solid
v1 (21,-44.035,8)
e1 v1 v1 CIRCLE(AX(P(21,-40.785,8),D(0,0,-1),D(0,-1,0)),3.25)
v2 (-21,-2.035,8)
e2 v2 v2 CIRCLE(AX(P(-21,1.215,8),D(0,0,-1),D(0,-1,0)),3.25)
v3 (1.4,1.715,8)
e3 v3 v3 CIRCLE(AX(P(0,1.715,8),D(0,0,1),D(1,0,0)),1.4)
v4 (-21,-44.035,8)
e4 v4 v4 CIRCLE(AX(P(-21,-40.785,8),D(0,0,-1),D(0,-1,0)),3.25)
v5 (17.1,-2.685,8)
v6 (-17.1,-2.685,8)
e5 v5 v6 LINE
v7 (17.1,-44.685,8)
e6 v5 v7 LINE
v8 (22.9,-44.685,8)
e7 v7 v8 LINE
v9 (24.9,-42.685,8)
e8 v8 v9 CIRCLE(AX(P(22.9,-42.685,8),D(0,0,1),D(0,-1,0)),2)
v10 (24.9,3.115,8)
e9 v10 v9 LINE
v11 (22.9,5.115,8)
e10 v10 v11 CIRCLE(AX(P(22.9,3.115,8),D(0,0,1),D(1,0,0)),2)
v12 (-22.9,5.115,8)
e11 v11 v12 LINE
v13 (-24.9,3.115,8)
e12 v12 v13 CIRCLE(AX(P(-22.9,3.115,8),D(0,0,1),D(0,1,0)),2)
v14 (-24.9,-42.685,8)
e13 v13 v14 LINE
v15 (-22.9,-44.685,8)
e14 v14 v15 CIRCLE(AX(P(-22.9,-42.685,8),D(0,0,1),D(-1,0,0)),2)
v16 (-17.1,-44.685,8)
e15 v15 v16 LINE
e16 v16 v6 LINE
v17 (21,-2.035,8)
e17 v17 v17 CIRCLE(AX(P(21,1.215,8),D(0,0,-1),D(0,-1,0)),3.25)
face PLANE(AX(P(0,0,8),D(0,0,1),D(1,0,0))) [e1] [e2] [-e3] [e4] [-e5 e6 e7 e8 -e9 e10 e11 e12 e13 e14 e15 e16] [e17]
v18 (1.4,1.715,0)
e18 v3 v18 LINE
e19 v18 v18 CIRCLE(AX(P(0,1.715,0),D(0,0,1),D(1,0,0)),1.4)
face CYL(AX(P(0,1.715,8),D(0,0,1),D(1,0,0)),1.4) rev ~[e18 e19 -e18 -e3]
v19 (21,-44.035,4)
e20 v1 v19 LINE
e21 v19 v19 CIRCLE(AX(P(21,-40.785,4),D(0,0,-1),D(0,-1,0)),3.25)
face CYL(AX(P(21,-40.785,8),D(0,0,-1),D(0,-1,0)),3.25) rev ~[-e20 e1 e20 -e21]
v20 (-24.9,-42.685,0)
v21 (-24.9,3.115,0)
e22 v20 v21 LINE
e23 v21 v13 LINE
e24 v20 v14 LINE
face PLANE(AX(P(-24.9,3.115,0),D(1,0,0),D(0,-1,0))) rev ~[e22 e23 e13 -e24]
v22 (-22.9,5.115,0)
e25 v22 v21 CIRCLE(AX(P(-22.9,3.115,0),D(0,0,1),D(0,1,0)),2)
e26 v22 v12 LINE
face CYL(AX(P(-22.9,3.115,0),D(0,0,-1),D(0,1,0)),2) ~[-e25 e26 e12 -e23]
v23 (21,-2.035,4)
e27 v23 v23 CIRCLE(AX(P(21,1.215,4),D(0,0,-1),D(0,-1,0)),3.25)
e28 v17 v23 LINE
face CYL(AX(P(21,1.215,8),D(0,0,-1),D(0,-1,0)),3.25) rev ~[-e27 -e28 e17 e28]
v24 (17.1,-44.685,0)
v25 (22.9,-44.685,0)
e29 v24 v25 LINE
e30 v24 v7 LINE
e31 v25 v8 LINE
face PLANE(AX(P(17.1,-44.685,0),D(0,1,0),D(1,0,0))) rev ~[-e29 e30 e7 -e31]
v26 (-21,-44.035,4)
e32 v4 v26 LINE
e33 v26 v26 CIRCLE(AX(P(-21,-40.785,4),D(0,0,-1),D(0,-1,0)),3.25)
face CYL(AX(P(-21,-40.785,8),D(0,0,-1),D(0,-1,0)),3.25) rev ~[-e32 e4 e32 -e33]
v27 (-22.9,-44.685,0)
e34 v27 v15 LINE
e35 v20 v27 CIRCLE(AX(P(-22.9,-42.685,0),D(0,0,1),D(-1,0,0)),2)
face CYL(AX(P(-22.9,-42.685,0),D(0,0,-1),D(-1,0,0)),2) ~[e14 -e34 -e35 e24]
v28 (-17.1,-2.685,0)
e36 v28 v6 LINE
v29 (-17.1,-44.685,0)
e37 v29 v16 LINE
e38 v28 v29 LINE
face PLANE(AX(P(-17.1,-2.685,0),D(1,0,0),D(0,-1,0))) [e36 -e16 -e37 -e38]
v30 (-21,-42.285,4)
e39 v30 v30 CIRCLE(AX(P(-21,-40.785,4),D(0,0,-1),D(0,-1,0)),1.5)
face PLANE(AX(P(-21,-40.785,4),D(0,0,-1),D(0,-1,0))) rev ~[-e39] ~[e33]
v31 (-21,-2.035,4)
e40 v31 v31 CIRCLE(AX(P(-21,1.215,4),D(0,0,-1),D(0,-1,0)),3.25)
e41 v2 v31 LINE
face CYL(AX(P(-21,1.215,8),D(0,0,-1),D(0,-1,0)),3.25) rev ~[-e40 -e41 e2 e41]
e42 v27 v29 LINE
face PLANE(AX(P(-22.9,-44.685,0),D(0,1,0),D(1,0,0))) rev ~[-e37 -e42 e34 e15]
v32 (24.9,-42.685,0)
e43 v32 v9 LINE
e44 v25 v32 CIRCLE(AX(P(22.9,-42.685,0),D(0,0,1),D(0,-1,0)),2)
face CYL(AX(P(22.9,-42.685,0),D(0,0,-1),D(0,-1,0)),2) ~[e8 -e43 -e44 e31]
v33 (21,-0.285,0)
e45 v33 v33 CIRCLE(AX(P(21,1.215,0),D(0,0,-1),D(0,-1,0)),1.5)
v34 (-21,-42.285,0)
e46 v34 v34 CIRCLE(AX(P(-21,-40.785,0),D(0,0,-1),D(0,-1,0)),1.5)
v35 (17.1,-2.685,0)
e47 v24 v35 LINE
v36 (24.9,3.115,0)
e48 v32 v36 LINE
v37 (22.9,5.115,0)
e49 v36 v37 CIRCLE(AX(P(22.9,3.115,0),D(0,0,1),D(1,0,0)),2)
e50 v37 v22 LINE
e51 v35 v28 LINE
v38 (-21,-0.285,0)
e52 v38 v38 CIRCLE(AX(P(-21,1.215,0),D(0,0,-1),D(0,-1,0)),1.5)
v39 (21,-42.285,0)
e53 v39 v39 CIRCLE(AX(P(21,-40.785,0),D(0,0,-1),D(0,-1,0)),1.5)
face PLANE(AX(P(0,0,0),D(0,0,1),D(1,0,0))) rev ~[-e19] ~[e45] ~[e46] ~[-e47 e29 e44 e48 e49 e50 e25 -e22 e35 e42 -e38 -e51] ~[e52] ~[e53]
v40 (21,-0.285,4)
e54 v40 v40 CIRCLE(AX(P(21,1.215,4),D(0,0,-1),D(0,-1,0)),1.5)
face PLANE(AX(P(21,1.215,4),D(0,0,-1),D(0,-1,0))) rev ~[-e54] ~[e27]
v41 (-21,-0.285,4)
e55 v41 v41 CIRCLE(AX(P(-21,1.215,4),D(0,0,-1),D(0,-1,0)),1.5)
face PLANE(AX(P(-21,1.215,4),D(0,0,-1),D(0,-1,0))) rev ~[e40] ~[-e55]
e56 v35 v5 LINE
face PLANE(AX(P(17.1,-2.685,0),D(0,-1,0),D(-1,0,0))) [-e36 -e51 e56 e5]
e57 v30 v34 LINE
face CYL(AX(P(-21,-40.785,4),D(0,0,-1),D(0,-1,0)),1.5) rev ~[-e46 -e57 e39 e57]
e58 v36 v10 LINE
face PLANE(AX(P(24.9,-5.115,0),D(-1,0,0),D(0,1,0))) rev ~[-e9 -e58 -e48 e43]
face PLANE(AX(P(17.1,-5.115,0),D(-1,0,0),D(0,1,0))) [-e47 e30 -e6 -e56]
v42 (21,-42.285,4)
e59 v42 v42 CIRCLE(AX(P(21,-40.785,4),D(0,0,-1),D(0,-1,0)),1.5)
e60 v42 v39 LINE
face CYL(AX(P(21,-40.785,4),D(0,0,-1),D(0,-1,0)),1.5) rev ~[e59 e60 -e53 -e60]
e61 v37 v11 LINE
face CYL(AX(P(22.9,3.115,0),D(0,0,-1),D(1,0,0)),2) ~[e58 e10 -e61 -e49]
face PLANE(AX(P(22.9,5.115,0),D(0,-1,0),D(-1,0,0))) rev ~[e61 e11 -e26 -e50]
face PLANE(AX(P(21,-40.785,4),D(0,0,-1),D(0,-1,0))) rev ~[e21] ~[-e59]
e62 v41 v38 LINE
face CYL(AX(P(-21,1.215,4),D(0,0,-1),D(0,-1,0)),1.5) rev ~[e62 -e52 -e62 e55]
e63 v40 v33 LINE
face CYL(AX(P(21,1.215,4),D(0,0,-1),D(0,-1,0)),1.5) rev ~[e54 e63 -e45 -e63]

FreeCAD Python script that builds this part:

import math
import FreeCAD as App
import Part
import Sketcher
Q = App.Units.Quantity

doc = App.newDocument("Part")
body = doc.addObject("PartDesign::Body", "Body")

# Sketch on XY plane
sketch1 = doc.addObject("Sketcher::SketchObject", "Sketch")
body.addObject(sketch1)
sketch1.AttachmentSupport = (doc.XY_Plane, [""])
sketch1.MapMode = "FlatFace"
sketch1.addGeometry([
    Part.ArcOfCircle(Part.Circle(App.Vector(22.9, 3.1, 0), App.Vector(0, 0, 1), 2), math.radians(0), math.radians(90)),  # 0
    Part.LineSegment(App.Vector(22.9, 5.1, 0), App.Vector(-22.9, 5.1, 0)),  # 1
    Part.ArcOfCircle(Part.Circle(App.Vector(-22.9, 3.1, 0), App.Vector(0, 0, 1), 2), math.radians(90), math.radians(180)),  # 2
    Part.LineSegment(App.Vector(-24.9, 3.1, 0), App.Vector(-24.9, -42.7, 0)),  # 3
    Part.ArcOfCircle(Part.Circle(App.Vector(-22.9, -42.7, 0), App.Vector(0, 0, 1), 2), math.radians(180), math.radians(270)),  # 4
    Part.LineSegment(App.Vector(-22.9, -44.7, 0), App.Vector(-17.1, -44.7, 0)),  # 5
    Part.LineSegment(App.Vector(-17.1, -44.7, 0), App.Vector(-17.1, -2.7, 0)),  # 6
    Part.LineSegment(App.Vector(-17.1, -2.7, 0), App.Vector(17.1, -2.7, 0)),  # 7
    Part.LineSegment(App.Vector(17.1, -2.7, 0), App.Vector(17.1, -44.7, 0)),  # 8
    Part.LineSegment(App.Vector(17.1, -44.7, 0), App.Vector(22.9, -44.7, 0)),  # 9
    Part.ArcOfCircle(Part.Circle(App.Vector(22.9, -42.7, 0), App.Vector(0, 0, 1), 2), math.radians(-90), math.radians(0)),  # 10
    Part.LineSegment(App.Vector(24.9, -42.7, 0), App.Vector(24.9, 3.1, 0)),  # 11
    Part.Circle(App.Vector(-21, 1.2, 0), App.Vector(0, 0, 1), 1.4),  # 12
    Part.Circle(App.Vector(21, 1.2, 0), App.Vector(0, 0, 1), 1.4),  # 13
    Part.Circle(App.Vector(21, -40.8, 0), App.Vector(0, 0, 1), 1.4),  # 14
    Part.Circle(App.Vector(-21, -40.8, 0), App.Vector(0, 0, 1), 1.4),  # 15
], False)
sketch1.addConstraint([
    Sketcher.Constraint("Tangent", 0, 2, 1, 1),
    Sketcher.Constraint("Tangent", 1, 2, 2, 1),
    Sketcher.Constraint("Tangent", 2, 2, 3, 1),
    Sketcher.Constraint("Tangent", 3, 2, 4, 1),
    Sketcher.Constraint("Tangent", 4, 2, 5, 1),
    Sketcher.Constraint("Coincident", 5, 2, 6, 1),
    Sketcher.Constraint("Coincident", 6, 2, 7, 1),
    Sketcher.Constraint("Coincident", 7, 2, 8, 1),
    Sketcher.Constraint("Coincident", 8, 2, 9, 1),
    Sketcher.Constraint("Tangent", 9, 2, 10, 1),
    Sketcher.Constraint("Tangent", 10, 2, 11, 1),
    Sketcher.Constraint("Tangent", 11, 2, 0, 1),
    Sketcher.Constraint("Horizontal", 1),
    Sketcher.Constraint("Vertical", 3),
    Sketcher.Constraint("Horizontal", 5),
    Sketcher.Constraint("Vertical", 6),
    Sketcher.Constraint("Horizontal", 7),
    Sketcher.Constraint("Vertical", 8),
    Sketcher.Constraint("Horizontal", 9),
    Sketcher.Constraint("Vertical", 11),
    Sketcher.Constraint("Equal", 0, 2),
    Sketcher.Constraint("Equal", 2, 4),
    Sketcher.Constraint("Equal", 4, 10),
    Sketcher.Constraint("Equal", 12, 13),
    Sketcher.Constraint("Equal", 13, 14),
    Sketcher.Constraint("Equal", 14, 15),
    Sketcher.Constraint("Symmetric", 4, 3, 10, 3, -2),
    Sketcher.Constraint("Symmetric", 12, 3, 13, 3, -2),
    Sketcher.Constraint("Symmetric", 14, 3, 15, 3, -2),
    Sketcher.Constraint("Vertical", 13, 3, 14, 3),
    Sketcher.Constraint("Equal", 5, 9),
    Sketcher.Constraint("Equal", 1, 3),
    Sketcher.Constraint("Radius", 0, Q("2 mm")),
    Sketcher.Constraint("Diameter", 12, Q("2.8 mm")),
    Sketcher.Constraint("DistanceX", 3, 2, 5, 2, Q("7.8 mm")),
    Sketcher.Constraint("DistanceY", 6, 2, 1, 2, Q("7.8 mm")),
    Sketcher.Constraint("DistanceY", 6, 1, 6, 2, Q("42 mm")),
    Sketcher.Constraint("DistanceX", 12, 3, -1, 1, Q("21 mm")),
    Sketcher.Constraint("DistanceY", 14, 3, 13, 3, Q("42 mm")),
    Sketcher.Constraint("DistanceY", 12, 3, 2, 3, Q("1.9 mm")),
    Sketcher.Constraint("DistanceY", -1, 1, 0, 3, Q("3.115 mm")),
])
pad1 = doc.addObject("PartDesign::Pad", "Pad")
body.addObject(pad1)
pad1.Profile = sketch1
pad1.Length = 8

# Sketch on XY plane
sketch2 = doc.addObject("Sketcher::SketchObject", "Sketch001")
body.addObject(sketch2)
sketch2.AttachmentSupport = (doc.XY_Plane, [""])
sketch2.MapMode = "FlatFace"
sketch2.AttachmentOffset = App.Placement(App.Vector(0, 0, 8), App.Rotation())
sketch2.addGeometry(Part.Circle(App.Vector(0, 1.7, 0), App.Vector(0, 0, 1), 1.4), False)
sketch2.addConstraint([
    Sketcher.Constraint("PointOnObject", 0, 3, -2),
    Sketcher.Constraint("Diameter", 0, Q("2.8 mm")),
    Sketcher.Constraint("DistanceY", -1, 1, 0, 3, Q("1.715 mm")),
])
pocket1 = doc.addObject("PartDesign::Pocket", "Pocket")
body.addObject(pocket1)
pocket1.Profile = sketch2
pocket1.Length = 8

# Sketch on XY plane
sketch3 = doc.addObject("Sketcher::SketchObject", "Sketch002")
body.addObject(sketch3)
sketch3.AttachmentSupport = (doc.XY_Plane, [""])
sketch3.MapMode = "FlatFace"
sketch3.AttachmentOffset = App.Placement(App.Vector(0, 0, 8), App.Rotation())
sketch3.addGeometry([
    Part.Circle(App.Vector(-21, 1.2, 0), App.Vector(0, 0, 1), 1.5),
    Part.Circle(App.Vector(21, 1.2, 0), App.Vector(0, 0, 1), 1.5),
    Part.Circle(App.Vector(21, -40.8, 0), App.Vector(0, 0, 1), 1.5),
    Part.Circle(App.Vector(-21, -40.8, 0), App.Vector(0, 0, 1), 1.5),
], False)
sketch3.addConstraint([
    Sketcher.Constraint("Equal", 0, 1),
    Sketcher.Constraint("Equal", 1, 2),
    Sketcher.Constraint("Equal", 2, 3),
    Sketcher.Constraint("Symmetric", 0, 3, 1, 3, -2),
    Sketcher.Constraint("Symmetric", 2, 3, 3, 3, -2),
    Sketcher.Constraint("Vertical", 1, 3, 2, 3),
    Sketcher.Constraint("Diameter", 0, Q("3 mm")),
    Sketcher.Constraint("DistanceX", 0, 3, -1, 1, Q("21 mm")),
    Sketcher.Constraint("DistanceY", 2, 3, 1, 3, Q("42 mm")),
    Sketcher.Constraint("DistanceY", -1, 1, 0, 3, Q("1.215 mm")),
])
doc.recompute()
hole = doc.addObject("PartDesign::Hole", "Hole")
body.addObject(hole)
hole.Profile = sketch3
hole.ThreadType = "None"
hole.Diameter = 3
hole.DepthType = "ThroughAll"
hole.HoleCutType = "Counterbore"
hole.HoleCutDiameter = 6.5
hole.HoleCutDepth = 4

doc.recompute()
